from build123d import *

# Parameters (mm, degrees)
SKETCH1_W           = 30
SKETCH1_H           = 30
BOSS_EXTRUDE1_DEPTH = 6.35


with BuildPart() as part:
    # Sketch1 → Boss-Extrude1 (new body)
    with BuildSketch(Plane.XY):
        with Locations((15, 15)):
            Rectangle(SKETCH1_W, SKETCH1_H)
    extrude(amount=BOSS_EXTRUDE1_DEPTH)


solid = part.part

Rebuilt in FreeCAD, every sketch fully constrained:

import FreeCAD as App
import Part
import Sketcher
Q = App.Units.Quantity


def add_polygon(sketch, points):
    """Adds a closed chain of lines whose ends are joined by coincident constraints."""
    first, n = sketch.GeometryCount, len(points)
    for a, b in zip(points, points[1:] + points[:1]):
        sketch.addGeometry(Part.LineSegment(App.Vector(*a, 0), App.Vector(*b, 0)), False)
    for i in range(n):
        sketch.addConstraint(Sketcher.Constraint("Coincident", first + i, 2, first + (i + 1) % n, 1))

doc = App.newDocument("Part")
body = doc.addObject("PartDesign::Body", "Body")

# Sketch on XY plane
sketch1 = body.newObject("Sketcher::SketchObject", "Sketch")
sketch1.AttachmentSupport = (doc.getObject("XY_Plane"), [""])
sketch1.MapMode = "FlatFace"
add_polygon(sketch1, [(0, 30), (0, 0), (30, 0), (30, 30)])  # lines 0-3
sketch1.addConstraint([
    Sketcher.Constraint("Vertical", 0),
    Sketcher.Constraint("Horizontal", 1),
    Sketcher.Constraint("Vertical", 2),
    Sketcher.Constraint("Horizontal", 3),
    Sketcher.Constraint("Coincident", 0, 2, -1, 1),
    Sketcher.Constraint("Equal", 3, 0),
    Sketcher.Constraint("DistanceX", 1, 1, 1, 2, Q("30 mm")),
])
pad1 = body.newObject("PartDesign::Pad", "Pad")
pad1.Profile = sketch1
pad1.Length = 6.35

doc.recompute()
